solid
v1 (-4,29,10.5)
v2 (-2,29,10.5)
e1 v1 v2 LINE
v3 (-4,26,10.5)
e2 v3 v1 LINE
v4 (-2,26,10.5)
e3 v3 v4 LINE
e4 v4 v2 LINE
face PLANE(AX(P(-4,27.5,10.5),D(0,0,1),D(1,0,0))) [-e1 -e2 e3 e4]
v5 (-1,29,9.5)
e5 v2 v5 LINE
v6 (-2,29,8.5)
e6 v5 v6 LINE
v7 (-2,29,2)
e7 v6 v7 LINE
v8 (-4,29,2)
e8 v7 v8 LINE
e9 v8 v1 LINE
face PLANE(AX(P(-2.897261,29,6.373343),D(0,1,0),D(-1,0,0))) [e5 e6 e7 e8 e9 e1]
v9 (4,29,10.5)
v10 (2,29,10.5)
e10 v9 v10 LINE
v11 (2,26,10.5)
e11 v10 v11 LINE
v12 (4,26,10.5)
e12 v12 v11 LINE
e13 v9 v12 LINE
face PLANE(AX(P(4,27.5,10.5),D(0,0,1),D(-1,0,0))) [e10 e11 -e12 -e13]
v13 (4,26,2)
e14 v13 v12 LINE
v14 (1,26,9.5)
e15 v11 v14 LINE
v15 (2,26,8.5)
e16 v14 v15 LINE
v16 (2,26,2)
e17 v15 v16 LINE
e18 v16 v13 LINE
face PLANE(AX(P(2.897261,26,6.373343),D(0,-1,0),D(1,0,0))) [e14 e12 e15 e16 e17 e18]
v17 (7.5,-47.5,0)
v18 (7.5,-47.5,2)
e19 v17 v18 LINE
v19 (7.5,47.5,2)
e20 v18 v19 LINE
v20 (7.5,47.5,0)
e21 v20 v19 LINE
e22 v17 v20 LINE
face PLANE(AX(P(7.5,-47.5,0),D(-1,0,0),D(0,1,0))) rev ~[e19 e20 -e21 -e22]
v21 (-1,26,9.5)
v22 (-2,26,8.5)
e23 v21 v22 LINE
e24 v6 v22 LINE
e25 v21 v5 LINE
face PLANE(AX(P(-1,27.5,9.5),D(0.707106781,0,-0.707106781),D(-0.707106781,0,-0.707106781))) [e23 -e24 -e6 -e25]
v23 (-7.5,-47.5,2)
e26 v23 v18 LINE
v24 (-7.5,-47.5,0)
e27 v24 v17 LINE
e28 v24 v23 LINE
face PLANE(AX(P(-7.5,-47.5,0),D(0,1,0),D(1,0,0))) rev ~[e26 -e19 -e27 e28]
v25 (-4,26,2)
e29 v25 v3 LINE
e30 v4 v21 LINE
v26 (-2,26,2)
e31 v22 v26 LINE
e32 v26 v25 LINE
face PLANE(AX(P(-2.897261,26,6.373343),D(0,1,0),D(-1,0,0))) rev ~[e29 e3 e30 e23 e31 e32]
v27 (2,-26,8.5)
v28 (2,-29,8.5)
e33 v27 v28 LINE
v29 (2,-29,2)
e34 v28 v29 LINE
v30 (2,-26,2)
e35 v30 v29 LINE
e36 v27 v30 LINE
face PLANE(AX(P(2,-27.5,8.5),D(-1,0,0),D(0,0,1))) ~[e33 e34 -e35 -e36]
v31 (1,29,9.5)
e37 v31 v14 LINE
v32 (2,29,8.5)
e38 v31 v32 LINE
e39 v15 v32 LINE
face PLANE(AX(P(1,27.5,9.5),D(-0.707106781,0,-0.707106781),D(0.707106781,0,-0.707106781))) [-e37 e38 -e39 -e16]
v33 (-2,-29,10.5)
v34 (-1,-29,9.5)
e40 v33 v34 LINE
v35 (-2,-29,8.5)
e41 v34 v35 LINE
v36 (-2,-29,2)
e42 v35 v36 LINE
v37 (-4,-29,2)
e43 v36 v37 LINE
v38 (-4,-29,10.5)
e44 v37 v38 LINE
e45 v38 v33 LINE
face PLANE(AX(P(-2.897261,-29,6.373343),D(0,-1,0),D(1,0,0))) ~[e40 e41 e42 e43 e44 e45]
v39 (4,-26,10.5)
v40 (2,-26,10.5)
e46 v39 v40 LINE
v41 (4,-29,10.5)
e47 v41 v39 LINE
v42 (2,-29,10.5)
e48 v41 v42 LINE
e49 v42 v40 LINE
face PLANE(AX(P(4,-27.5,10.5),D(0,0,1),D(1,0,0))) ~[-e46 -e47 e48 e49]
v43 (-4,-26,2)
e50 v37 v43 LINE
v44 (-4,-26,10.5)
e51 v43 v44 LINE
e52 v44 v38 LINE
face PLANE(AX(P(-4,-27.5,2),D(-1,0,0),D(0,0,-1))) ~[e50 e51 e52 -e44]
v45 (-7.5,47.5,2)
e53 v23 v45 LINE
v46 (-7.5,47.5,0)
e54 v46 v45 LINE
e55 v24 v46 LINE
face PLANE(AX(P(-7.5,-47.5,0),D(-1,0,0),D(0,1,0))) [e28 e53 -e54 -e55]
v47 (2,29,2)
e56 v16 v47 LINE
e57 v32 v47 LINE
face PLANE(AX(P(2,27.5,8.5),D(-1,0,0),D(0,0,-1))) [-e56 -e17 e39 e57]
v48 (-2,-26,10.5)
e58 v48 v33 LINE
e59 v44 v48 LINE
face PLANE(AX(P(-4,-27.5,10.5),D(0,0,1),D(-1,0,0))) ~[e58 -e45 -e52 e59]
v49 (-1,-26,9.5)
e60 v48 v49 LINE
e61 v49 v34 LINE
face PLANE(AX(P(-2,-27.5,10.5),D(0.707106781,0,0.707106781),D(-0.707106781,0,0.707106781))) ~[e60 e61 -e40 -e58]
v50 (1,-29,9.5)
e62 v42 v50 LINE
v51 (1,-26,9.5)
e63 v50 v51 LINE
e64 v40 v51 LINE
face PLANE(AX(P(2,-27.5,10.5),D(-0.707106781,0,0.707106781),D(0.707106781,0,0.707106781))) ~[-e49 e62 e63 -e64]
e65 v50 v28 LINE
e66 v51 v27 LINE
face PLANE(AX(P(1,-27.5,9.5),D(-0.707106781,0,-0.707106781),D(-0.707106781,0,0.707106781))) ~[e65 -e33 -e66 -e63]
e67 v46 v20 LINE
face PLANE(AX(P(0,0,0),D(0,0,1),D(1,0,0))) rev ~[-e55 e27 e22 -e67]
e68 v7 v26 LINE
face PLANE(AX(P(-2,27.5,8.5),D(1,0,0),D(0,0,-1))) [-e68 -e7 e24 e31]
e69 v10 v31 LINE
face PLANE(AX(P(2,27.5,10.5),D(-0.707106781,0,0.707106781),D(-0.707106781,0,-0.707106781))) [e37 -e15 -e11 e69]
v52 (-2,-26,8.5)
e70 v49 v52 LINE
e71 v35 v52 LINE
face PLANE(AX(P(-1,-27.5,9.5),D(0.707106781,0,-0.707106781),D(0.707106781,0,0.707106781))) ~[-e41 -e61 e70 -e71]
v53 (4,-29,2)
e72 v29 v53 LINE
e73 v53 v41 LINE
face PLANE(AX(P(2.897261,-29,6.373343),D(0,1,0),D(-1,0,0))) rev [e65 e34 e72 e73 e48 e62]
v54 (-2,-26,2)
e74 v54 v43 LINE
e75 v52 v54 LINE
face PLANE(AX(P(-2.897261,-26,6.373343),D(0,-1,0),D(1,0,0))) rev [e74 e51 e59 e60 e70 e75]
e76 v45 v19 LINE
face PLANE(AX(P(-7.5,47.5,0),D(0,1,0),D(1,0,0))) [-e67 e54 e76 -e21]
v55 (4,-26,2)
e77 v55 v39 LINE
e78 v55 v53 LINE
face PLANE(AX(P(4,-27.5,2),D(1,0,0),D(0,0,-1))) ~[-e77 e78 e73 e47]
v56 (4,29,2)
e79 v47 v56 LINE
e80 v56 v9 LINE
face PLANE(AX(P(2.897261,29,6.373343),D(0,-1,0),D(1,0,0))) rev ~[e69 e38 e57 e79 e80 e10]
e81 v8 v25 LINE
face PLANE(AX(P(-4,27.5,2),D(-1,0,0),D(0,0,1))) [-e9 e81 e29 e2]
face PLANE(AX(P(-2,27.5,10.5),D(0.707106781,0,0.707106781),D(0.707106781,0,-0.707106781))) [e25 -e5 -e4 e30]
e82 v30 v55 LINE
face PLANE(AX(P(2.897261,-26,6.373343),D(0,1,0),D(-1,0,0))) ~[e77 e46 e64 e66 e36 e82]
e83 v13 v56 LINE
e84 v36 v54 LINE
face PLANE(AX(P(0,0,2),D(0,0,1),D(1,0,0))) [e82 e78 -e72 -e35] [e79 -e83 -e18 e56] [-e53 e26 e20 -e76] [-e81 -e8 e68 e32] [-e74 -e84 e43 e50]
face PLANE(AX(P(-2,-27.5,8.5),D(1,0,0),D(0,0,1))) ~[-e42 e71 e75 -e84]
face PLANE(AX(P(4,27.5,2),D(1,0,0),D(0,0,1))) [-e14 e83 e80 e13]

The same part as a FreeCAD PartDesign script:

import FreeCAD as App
import Part
import Sketcher
from FreeCAD import Vector
Q = App.Units.Quantity


def add_polygon(sketch, points):
    """Adds a closed chain of lines whose ends are joined by coincident constraints."""
    first, n = sketch.GeometryCount, len(points)
    for a, b in zip(points, points[1:] + points[:1]):
        sketch.addGeometry(Part.LineSegment(App.Vector(*a, 0), App.Vector(*b, 0)), False)
    for i in range(n):
        sketch.addConstraint(Sketcher.Constraint("Coincident", first + i, 2, first + (i + 1) % n, 1))

doc = App.newDocument("Part")
body = doc.addObject("PartDesign::Body", "Body")

# Sketch on XY plane
sketch1 = doc.addObject("Sketcher::SketchObject", "Sketch")
body.addObject(sketch1)
sketch1.AttachmentSupport = (doc.XY_Plane, [""])
sketch1.MapMode = "FlatFace"
add_polygon(sketch1, [(-7.5, 47.5), (-7.5, -47.5), (7.5, -47.5), (7.5, 47.5)])  # lines 0-3
sketch1.addConstraint([
    Sketcher.Constraint("Vertical", 0),
    Sketcher.Constraint("Horizontal", 1),
    Sketcher.Constraint("Vertical", 2),
    Sketcher.Constraint("Horizontal", 3),
    Sketcher.Constraint("Symmetric", 0, 2, 2, 2, -1, 1),
    Sketcher.Constraint("DistanceX", 1, 1, 1, 2, Q("15 mm")),
    Sketcher.Constraint("DistanceY", 0, 2, 0, 1, Q("95 mm")),
])
pad1 = doc.addObject("PartDesign::Pad", "Pad")
body.addObject(pad1)
pad1.Profile = sketch1
pad1.Length = 2

# Sketch on XZ plane
sketch2 = doc.addObject("Sketcher::SketchObject", "Sketch001")
body.addObject(sketch2)
sketch2.AttachmentSupport = (doc.XZ_Plane, [""])
sketch2.MapMode = "FlatFace"
sketch2.AttachmentOffset = App.Placement(Vector(0, 0, -27.5), App.Rotation())
add_polygon(sketch2, [(4, 10.5), (4, 2), (2, 2), (2, 8.5), (1, 9.5), (2, 10.5)])  # lines 0-5
add_polygon(sketch2, [(-4, 2), (-4, 10.5), (-2, 10.5), (-1, 9.5), (-2, 8.5), (-2, 2)])  # lines 6-11
sketch2.addConstraint([
    Sketcher.Constraint("Vertical", 0),
    Sketcher.Constraint("Horizontal", 1),
    Sketcher.Constraint("Vertical", 2),
    Sketcher.Constraint("Horizontal", 5),
    Sketcher.Constraint("Vertical", 6),
    Sketcher.Constraint("Horizontal", 7),
    Sketcher.Constraint("Vertical", 10),
    Sketcher.Constraint("Horizontal", 11),
    Sketcher.Constraint("Symmetric", 5, 2, 6, 2, -2),
    Sketcher.Constraint("Symmetric", 3, 2, 8, 2, -2),
    Sketcher.Constraint("Symmetric", 2, 2, 9, 2, -2),
    Sketcher.Constraint("Perpendicular", 3, 4),
    Sketcher.Constraint("Perpendicular", 4, 8),
    Sketcher.Constraint("Perpendicular", 8, 9),
    Sketcher.Constraint("Horizontal", 1, 2, 10, 2),
    Sketcher.Constraint("Vertical", 2, 2, 4, 2),
    Sketcher.Constraint("DistanceX", 1, 2, 1, 1, Q("2 mm")),
    Sketcher.Constraint("DistanceY", 0, 2, 0, 1, Q("8.5 mm")),
    Sketcher.Constraint("DistanceY", 2, 1, 2, 2, Q("6.5 mm")),
    Sketcher.Constraint("DistanceX", -1, 1, 0, 2, Q("4 mm")),
    Sketcher.Constraint("DistanceY", -1, 1, 0, 2, Q("2 mm")),
])
pad2 = doc.addObject("PartDesign::Pad", "Pad001")
body.addObject(pad2)
pad2.Profile = sketch2
pad2.Length = 3
pad2.Midplane = True
doc.recompute()

mirrored = doc.addObject("PartDesign::Mirrored", "Mirrored")
body.addObject(mirrored)
mirrored.Originals = [pad2]
mirrored.MirrorPlane = (doc.XZ_Plane, [""])
body.Tip = mirrored

doc.recompute()
